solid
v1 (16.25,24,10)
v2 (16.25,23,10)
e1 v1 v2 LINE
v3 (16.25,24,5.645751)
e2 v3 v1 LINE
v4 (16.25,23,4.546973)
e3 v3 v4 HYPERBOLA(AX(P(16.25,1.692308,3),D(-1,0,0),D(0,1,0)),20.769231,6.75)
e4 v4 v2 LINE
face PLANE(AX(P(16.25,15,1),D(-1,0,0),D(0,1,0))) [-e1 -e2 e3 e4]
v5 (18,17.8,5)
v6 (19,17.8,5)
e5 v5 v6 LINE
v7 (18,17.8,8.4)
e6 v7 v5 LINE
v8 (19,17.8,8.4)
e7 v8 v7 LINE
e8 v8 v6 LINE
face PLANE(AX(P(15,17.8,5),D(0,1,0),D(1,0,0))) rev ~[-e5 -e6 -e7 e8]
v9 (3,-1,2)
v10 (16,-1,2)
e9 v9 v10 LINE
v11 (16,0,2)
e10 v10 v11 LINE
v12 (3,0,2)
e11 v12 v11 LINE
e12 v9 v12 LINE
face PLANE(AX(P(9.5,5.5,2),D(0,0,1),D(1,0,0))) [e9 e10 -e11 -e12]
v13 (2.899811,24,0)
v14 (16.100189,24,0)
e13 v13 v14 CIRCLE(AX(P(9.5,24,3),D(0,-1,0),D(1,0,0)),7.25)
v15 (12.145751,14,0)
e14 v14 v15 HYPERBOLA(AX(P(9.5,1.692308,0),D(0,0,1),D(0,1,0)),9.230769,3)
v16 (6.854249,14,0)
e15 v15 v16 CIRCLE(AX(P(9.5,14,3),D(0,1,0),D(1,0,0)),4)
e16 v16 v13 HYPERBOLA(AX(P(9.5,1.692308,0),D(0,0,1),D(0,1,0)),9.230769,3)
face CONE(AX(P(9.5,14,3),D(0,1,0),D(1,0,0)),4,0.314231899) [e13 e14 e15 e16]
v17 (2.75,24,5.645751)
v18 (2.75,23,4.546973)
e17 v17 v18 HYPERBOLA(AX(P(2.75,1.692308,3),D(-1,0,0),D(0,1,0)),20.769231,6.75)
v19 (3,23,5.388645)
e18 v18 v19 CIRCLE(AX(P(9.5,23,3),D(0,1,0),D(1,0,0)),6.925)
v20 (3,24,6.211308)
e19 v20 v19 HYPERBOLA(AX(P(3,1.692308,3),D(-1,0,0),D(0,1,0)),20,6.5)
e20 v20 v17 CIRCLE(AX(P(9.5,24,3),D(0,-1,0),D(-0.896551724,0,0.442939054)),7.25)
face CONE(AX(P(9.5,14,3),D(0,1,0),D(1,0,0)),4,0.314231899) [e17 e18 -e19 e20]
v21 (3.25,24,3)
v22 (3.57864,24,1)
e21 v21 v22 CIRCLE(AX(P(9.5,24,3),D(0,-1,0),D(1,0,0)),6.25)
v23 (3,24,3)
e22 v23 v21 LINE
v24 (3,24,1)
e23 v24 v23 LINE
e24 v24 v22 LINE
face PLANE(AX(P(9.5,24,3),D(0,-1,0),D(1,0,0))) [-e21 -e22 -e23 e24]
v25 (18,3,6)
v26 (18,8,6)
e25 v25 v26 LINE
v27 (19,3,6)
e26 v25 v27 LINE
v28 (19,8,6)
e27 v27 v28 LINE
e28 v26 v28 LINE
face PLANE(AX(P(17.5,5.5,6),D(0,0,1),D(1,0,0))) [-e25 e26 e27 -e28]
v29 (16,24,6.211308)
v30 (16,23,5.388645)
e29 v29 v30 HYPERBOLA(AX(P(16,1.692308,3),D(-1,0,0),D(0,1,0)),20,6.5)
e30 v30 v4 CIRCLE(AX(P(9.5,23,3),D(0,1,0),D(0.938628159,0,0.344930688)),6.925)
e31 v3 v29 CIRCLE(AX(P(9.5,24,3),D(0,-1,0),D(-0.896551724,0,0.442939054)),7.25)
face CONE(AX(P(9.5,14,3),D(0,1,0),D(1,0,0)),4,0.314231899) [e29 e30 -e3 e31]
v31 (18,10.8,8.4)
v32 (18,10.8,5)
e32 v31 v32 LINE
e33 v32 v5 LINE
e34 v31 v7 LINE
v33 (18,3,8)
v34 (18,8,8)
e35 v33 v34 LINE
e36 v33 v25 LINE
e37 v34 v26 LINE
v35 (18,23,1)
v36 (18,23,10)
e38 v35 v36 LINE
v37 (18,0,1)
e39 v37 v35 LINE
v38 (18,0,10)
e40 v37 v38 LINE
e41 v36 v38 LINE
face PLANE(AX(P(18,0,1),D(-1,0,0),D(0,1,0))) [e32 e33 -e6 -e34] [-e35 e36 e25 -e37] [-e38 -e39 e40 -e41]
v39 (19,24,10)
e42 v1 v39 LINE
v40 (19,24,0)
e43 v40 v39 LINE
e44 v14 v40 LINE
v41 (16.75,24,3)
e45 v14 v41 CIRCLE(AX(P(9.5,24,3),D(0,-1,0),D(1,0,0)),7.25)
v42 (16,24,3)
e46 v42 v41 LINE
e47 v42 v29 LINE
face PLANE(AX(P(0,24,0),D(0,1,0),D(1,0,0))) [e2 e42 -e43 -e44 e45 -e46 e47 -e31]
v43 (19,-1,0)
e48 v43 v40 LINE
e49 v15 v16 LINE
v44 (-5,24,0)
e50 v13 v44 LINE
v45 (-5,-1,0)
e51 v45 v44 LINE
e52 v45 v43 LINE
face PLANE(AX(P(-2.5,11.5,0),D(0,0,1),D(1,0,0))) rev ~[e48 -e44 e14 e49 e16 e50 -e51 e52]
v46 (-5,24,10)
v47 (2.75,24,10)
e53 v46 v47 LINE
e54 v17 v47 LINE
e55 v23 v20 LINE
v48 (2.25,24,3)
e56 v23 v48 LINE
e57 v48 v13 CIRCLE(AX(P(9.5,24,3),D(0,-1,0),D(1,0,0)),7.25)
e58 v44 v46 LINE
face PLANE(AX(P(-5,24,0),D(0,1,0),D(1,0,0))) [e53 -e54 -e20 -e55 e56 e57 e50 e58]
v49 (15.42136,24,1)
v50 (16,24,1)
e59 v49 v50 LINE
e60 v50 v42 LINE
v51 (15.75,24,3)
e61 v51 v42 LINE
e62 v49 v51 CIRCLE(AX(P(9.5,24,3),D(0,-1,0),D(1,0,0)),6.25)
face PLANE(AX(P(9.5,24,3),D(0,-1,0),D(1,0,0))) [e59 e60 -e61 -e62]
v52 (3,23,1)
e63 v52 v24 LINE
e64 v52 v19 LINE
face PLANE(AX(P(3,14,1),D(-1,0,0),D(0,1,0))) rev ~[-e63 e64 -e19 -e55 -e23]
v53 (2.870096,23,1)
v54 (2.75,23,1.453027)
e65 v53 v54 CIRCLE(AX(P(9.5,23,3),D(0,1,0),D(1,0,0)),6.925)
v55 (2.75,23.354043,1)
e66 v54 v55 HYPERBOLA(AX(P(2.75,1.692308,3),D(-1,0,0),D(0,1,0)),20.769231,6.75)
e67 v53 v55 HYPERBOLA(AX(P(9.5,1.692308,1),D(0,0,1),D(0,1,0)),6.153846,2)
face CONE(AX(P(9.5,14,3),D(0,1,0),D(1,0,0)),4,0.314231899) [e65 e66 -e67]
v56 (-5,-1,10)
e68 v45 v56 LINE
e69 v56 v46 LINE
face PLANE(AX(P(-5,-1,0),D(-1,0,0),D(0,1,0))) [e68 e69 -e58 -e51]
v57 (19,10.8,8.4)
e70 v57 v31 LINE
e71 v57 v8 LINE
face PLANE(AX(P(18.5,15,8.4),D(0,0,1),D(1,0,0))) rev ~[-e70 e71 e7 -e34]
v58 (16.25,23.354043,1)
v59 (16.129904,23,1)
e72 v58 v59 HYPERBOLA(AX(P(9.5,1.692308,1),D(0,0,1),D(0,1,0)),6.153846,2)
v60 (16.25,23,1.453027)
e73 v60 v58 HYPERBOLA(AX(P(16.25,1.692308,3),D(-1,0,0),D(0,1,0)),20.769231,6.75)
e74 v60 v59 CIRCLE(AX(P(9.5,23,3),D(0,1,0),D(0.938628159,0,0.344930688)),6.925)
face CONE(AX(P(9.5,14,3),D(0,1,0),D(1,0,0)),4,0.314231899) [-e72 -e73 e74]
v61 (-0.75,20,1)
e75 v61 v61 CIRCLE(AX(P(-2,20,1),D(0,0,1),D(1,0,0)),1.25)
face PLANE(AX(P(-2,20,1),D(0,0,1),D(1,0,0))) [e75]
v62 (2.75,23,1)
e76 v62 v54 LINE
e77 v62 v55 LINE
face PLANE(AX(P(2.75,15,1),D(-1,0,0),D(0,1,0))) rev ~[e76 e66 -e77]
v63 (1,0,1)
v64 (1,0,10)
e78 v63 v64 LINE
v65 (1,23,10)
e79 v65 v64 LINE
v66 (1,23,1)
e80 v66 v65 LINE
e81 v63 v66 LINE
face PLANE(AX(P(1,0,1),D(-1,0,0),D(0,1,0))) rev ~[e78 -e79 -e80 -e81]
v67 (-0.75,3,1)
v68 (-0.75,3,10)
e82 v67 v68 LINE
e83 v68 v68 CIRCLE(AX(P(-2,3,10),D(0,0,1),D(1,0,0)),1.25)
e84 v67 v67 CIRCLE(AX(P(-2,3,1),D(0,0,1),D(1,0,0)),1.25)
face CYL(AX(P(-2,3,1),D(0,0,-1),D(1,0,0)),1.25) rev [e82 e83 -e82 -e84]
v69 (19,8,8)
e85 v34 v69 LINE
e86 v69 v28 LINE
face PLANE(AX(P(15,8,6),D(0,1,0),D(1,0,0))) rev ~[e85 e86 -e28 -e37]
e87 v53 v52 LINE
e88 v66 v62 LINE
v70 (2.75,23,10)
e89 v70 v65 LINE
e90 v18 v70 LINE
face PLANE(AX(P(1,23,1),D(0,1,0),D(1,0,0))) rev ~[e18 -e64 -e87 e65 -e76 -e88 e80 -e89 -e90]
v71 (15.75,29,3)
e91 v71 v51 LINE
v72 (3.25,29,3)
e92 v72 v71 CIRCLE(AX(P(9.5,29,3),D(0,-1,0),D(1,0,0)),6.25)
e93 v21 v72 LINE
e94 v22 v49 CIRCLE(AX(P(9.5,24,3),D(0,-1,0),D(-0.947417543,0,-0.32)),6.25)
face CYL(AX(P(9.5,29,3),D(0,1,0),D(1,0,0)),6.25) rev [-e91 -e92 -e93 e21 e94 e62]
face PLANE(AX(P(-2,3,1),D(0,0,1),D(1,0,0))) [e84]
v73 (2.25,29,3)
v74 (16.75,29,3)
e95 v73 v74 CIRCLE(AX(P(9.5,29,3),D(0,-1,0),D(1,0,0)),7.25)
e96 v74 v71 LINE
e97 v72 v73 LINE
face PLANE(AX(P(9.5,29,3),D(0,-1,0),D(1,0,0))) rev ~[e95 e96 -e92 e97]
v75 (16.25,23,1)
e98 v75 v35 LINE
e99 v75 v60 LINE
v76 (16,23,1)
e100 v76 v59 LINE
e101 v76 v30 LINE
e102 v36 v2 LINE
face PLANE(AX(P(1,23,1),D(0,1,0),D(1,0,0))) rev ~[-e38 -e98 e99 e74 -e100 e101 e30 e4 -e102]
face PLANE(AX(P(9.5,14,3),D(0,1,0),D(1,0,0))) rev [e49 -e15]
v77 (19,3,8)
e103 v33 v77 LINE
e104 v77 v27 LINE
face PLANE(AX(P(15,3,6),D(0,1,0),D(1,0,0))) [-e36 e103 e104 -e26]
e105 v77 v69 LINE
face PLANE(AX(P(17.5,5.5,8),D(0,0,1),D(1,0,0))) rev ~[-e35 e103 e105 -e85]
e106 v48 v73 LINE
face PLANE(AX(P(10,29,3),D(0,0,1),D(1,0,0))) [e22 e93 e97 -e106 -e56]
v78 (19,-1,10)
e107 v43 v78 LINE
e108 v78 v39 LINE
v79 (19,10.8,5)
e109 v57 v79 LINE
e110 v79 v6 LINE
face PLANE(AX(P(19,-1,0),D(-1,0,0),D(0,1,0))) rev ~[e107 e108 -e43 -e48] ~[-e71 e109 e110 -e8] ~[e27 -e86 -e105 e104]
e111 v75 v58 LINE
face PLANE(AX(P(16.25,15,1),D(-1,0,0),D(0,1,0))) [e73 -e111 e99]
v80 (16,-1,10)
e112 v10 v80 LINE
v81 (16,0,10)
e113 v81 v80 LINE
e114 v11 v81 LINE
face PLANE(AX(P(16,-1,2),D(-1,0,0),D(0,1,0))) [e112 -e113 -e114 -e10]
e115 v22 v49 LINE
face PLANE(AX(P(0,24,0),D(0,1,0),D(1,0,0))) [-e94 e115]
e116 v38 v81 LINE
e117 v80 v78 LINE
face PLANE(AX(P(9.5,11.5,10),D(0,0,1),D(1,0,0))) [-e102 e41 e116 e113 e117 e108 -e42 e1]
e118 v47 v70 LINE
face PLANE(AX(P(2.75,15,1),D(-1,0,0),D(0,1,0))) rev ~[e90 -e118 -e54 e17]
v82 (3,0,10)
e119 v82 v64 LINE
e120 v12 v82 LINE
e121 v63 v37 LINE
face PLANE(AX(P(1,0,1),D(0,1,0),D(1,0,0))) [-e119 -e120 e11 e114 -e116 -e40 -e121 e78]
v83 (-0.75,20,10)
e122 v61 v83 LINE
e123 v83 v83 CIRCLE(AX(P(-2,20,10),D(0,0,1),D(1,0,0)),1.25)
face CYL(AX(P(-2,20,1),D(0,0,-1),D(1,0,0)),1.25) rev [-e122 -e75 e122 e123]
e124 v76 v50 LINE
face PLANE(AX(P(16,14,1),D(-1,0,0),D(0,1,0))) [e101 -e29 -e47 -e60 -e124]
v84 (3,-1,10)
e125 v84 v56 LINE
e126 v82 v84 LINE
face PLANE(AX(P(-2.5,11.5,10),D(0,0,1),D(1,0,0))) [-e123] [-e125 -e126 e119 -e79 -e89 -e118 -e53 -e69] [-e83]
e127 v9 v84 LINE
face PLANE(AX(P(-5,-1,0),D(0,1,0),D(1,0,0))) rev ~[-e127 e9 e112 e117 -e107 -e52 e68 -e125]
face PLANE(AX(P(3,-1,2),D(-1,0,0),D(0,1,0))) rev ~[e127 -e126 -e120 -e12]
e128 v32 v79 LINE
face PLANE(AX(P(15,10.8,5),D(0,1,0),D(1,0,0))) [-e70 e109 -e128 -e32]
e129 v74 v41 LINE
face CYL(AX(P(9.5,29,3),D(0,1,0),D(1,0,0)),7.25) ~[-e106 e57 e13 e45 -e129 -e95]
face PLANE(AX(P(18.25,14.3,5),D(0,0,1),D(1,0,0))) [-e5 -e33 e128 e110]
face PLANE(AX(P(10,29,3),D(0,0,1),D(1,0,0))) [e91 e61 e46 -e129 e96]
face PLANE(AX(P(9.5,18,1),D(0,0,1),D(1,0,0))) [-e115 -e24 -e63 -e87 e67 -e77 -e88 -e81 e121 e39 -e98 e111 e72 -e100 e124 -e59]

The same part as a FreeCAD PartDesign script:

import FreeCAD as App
import Part
import Sketcher

V = App.Vector
Q = App.Units.Quantity

doc = App.newDocument("Part")
body = doc.addObject("PartDesign::Body", "Body")

# Sketch on XY plane
sketch1 = body.newObject("Sketcher::SketchObject", "Sketch")
sketch1.AttachmentSupport = (doc.getObject("XY_Plane"), [""])
sketch1.MapMode = "FlatFace"
sketch1.AttachmentOffset = App.Placement(V(0, 0, 1), App.Rotation())
sketch1.addGeometry(Part.Circle(V(-2, 20, 0), V(0, 0, 1), 1.2), False)
sketch1.addConstraint(Sketcher.Constraint("Diameter", 0, Q("2.5 mm")))
sketch1.addConstraint(Sketcher.Constraint("DistanceX", 0, 3, -1, 1, Q("2 mm")))
sketch1.addConstraint(Sketcher.Constraint("DistanceY", -1, 1, 0, 3, Q("20 mm")))
pad1 = body.newObject("PartDesign::Pad", "Pad")
pad1.Profile = sketch1
pad1.Length = 9
body2 = doc.addObject("PartDesign::Body", "Body001")

# Sketch on XY plane
sketch2 = body2.newObject("Sketcher::SketchObject", "Sketch001")
sketch2.AttachmentSupport = (doc.getObject("XY_Plane001"), [""])
sketch2.MapMode = "FlatFace"
sketch2.AttachmentOffset = App.Placement(V(0, 0, 1), App.Rotation())
sketch2.addGeometry(Part.Circle(V(-2, 3, 0), V(0, 0, 1), 1.2), False)
sketch2.addConstraint(Sketcher.Constraint("Diameter", 0, Q("2.5 mm")))
sketch2.addConstraint(Sketcher.Constraint("DistanceX", 0, 3, -1, 1, Q("2 mm")))
sketch2.addConstraint(Sketcher.Constraint("DistanceY", -1, 1, 0, 3, Q("3 mm")))
pad2 = body2.newObject("PartDesign::Pad", "Pad001")
pad2.Profile = sketch2
pad2.Length = 9
body3 = doc.addObject("PartDesign::Body", "Body002")

# Sketch on XY plane
sketch3 = body3.newObject("Sketcher::SketchObject", "Sketch002")
sketch3.AttachmentSupport = (doc.getObject("XY_Plane002"), [""])
sketch3.MapMode = "FlatFace"
sketch3.addGeometry(Part.LineSegment(V(-5, 24, 0), V(-5, -1, 0)), False)
sketch3.addGeometry(Part.LineSegment(V(-5, -1, 0), V(0, -1, 0)), False)
sketch3.addGeometry(Part.LineSegment(V(0, -1, 0), V(0, 24, 0)), False)
sketch3.addGeometry(Part.LineSegment(V(0, 24, 0), V(-5, 24, 0)), False)
sketch3.addConstraint(Sketcher.Constraint("Coincident", 0, 2, 1, 1))
sketch3.addConstraint(Sketcher.Constraint("Coincident", 1, 2, 2, 1))
sketch3.addConstraint(Sketcher.Constraint("Coincident", 2, 2, 3, 1))
sketch3.addConstraint(Sketcher.Constraint("Coincident", 3, 2, 0, 1))
sketch3.addConstraint(Sketcher.Constraint("Vertical", 0))
sketch3.addConstraint(Sketcher.Constraint("Horizontal", 1))
sketch3.addConstraint(Sketcher.Constraint("Vertical", 2))
sketch3.addConstraint(Sketcher.Constraint("Horizontal", 3))
sketch3.addConstraint(Sketcher.Constraint("PointOnObject", 1, 2, -2))
sketch3.addConstraint(Sketcher.Constraint("DistanceX", 1, 1, 1, 2, Q("5 mm")))
sketch3.addConstraint(Sketcher.Constraint("DistanceY", 0, 2, 0, 1, Q("25 mm")))
sketch3.addConstraint(Sketcher.Constraint("DistanceY", 0, 2, -1, 1, Q("1 mm")))
pad3 = body3.newObject("PartDesign::Pad", "Pad002")
pad3.Profile = sketch3
pad3.Length = 10
body4 = doc.addObject("PartDesign::Body", "Body003")

# Sketch on XY plane
sketch4 = body4.newObject("Sketcher::SketchObject", "Sketch003")
sketch4.AttachmentSupport = (doc.getObject("XY_Plane003"), [""])
sketch4.MapMode = "FlatFace"
sketch4.AttachmentOffset = App.Placement(V(0, 0, 6), App.Rotation())
sketch4.addGeometry(Part.LineSegment(V(15, 8, 0), V(15, 3, 0)), False)
sketch4.addGeometry(Part.LineSegment(V(15, 3, 0), V(20, 3, 0)), False)
sketch4.addGeometry(Part.LineSegment(V(20, 3, 0), V(20, 8, 0)), False)
sketch4.addGeometry(Part.LineSegment(V(20, 8, 0), V(15, 8, 0)), False)
sketch4.addConstraint(Sketcher.Constraint("Coincident", 0, 2, 1, 1))
sketch4.addConstraint(Sketcher.Constraint("Coincident", 1, 2, 2, 1))
sketch4.addConstraint(Sketcher.Constraint("Coincident", 2, 2, 3, 1))
sketch4.addConstraint(Sketcher.Constraint("Coincident", 3, 2, 0, 1))
sketch4.addConstraint(Sketcher.Constraint("Vertical", 0))
sketch4.addConstraint(Sketcher.Constraint("Horizontal", 1))
sketch4.addConstraint(Sketcher.Constraint("Vertical", 2))
sketch4.addConstraint(Sketcher.Constraint("Horizontal", 3))
sketch4.addConstraint(Sketcher.Constraint("Equal", 3, 0))
sketch4.addConstraint(Sketcher.Constraint("DistanceX", 1, 1, 1, 2, Q("5 mm")))
sketch4.addConstraint(Sketcher.Constraint("DistanceX", -1, 1, 0, 2, Q("15 mm")))
sketch4.addConstraint(Sketcher.Constraint("DistanceY", -1, 1, 0, 2, Q("3 mm")))
pad4 = body4.newObject("PartDesign::Pad", "Pad003")
pad4.Profile = sketch4
pad4.Length = 2
body5 = doc.addObject("PartDesign::Body", "Body004")

# Sketch on XY plane
sketch5 = body5.newObject("Sketcher::SketchObject", "Sketch004")
sketch5.AttachmentSupport = (doc.getObject("XY_Plane004"), [""])
sketch5.MapMode = "FlatFace"
sketch5.AttachmentOffset = App.Placement(V(0, 0, 3), App.Rotation())
sketch5.addGeometry(Part.LineSegment(V(0, 34, 0), V(0, 24, 0)), False)
sketch5.addGeometry(Part.LineSegment(V(0, 24, 0), V(20, 24, 0)), False)
sketch5.addGeometry(Part.LineSegment(V(20, 24, 0), V(20, 34, 0)), False)
sketch5.addGeometry(Part.LineSegment(V(20, 34, 0), V(0, 34, 0)), False)
sketch5.addConstraint(Sketcher.Constraint("Coincident", 0, 2, 1, 1))
sketch5.addConstraint(Sketcher.Constraint("Coincident", 1, 2, 2, 1))
sketch5.addConstraint(Sketcher.Constraint("Coincident", 2, 2, 3, 1))
sketch5.addConstraint(Sketcher.Constraint("Coincident", 3, 2, 0, 1))
sketch5.addConstraint(Sketcher.Constraint("Vertical", 0))
sketch5.addConstraint(Sketcher.Constraint("Horizontal", 1))
sketch5.addConstraint(Sketcher.Constraint("Vertical", 2))
sketch5.addConstraint(Sketcher.Constraint("Horizontal", 3))
sketch5.addConstraint(Sketcher.Constraint("PointOnObject", 0, 2, -2))
sketch5.addConstraint(Sketcher.Constraint("DistanceX", 1, 1, 1, 2, Q("20 mm")))
sketch5.addConstraint(Sketcher.Constraint("DistanceY", 0, 2, 0, 1, Q("10 mm")))
sketch5.addConstraint(Sketcher.Constraint("DistanceY", -1, 1, 0, 2, Q("24 mm")))
pad5 = body5.newObject("PartDesign::Pad", "Pad004")
pad5.Profile = sketch5
pad5.Length = 10
body6 = doc.addObject("PartDesign::Body", "Body005")

# Sketch on XZ plane
sketch6 = body6.newObject("Sketcher::SketchObject", "Sketch005")
sketch6.AttachmentSupport = (doc.getObject("XZ_Plane005"), [""])
sketch6.MapMode = "FlatFace"
sketch6.AttachmentOffset = App.Placement(V(0, 0, -29), App.Rotation())
sketch6.addGeometry(Part.Circle(V(10, 3, 0), V(0, 0, 1), 6), False)
sketch6.addConstraint(Sketcher.Constraint("Diameter", 0, Q("12.5 mm")))
sketch6.addConstraint(Sketcher.Constraint("DistanceY", -1, 1, 0, 3, Q("3 mm")))
sketch6.addConstraint(Sketcher.Constraint("DistanceX", -1, 1, 0, 3, Q("9.5 mm")))
pad6 = body6.newObject("PartDesign::Pad", "Pad005")
pad6.Profile = sketch6
pad6.Length = 5
body7 = doc.addObject("PartDesign::Body", "Body006")

# Sketch on XZ plane
sketch7 = body7.newObject("Sketcher::SketchObject", "Sketch006")
sketch7.AttachmentSupport = (doc.getObject("XZ_Plane006"), [""])
sketch7.MapMode = "FlatFace"
sketch7.AttachmentOffset = App.Placement(V(0, 0, -29), App.Rotation())
sketch7.addGeometry(Part.Circle(V(10, 3, 0), V(0, 0, 1), 7), False)
sketch7.addConstraint(Sketcher.Constraint("Diameter", 0, Q("14.5 mm")))
sketch7.addConstraint(Sketcher.Constraint("DistanceY", -1, 1, 0, 3, Q("3 mm")))
sketch7.addConstraint(Sketcher.Constraint("DistanceX", -1, 1, 0, 3, Q("9.5 mm")))
pad7 = body7.newObject("PartDesign::Pad", "Pad006")
pad7.Profile = sketch7
pad7.Length = 5
doc.recompute()

boolean = body7.newObject("PartDesign::Boolean", "Boolean")
boolean.Type = "Cut"
boolean.addObjects([body6])
doc.recompute()

boolean2 = body7.newObject("PartDesign::Boolean", "Boolean001")
boolean2.Type = "Cut"
boolean2.addObjects([body5])
body8 = doc.addObject("PartDesign::Body", "Body007")

# Sketch on XY plane
sketch8 = body8.newObject("Sketcher::SketchObject", "Sketch007")
sketch8.AttachmentSupport = (doc.getObject("XY_Plane007"), [""])
sketch8.MapMode = "FlatFace"
sketch8.AttachmentOffset = App.Placement(V(0, 0, 5), App.Rotation())
sketch8.addGeometry(Part.LineSegment(V(15, 18, 0), V(15, 11, 0)), False)
sketch8.addGeometry(Part.LineSegment(V(15, 11, 0), V(22, 11, 0)), False)
sketch8.addGeometry(Part.LineSegment(V(22, 11, 0), V(22, 18, 0)), False)
sketch8.addGeometry(Part.LineSegment(V(22, 18, 0), V(15, 18, 0)), False)
sketch8.addConstraint(Sketcher.Constraint("Coincident", 0, 2, 1, 1))
sketch8.addConstraint(Sketcher.Constraint("Coincident", 1, 2, 2, 1))
sketch8.addConstraint(Sketcher.Constraint("Coincident", 2, 2, 3, 1))
sketch8.addConstraint(Sketcher.Constraint("Coincident", 3, 2, 0, 1))
sketch8.addConstraint(Sketcher.Constraint("Vertical", 0))
sketch8.addConstraint(Sketcher.Constraint("Horizontal", 1))
sketch8.addConstraint(Sketcher.Constraint("Vertical", 2))
sketch8.addConstraint(Sketcher.Constraint("Horizontal", 3))
sketch8.addConstraint(Sketcher.Constraint("DistanceY", 0, 2, 0, 1, Q("7 mm")))
sketch8.addConstraint(Sketcher.Constraint("DistanceX", 1, 1, 1, 2, Q("6.5 mm")))
sketch8.addConstraint(Sketcher.Constraint("DistanceX", -1, 1, 0, 2, Q("15 mm")))
sketch8.addConstraint(Sketcher.Constraint("DistanceY", -1, 1, 0, 2, Q("10.8 mm")))
pad8 = body8.newObject("PartDesign::Pad", "Pad007")
pad8.Profile = sketch8
pad8.Length = 10
body9 = doc.addObject("PartDesign::Body", "Body008")

# Sketch on XY plane
sketch9 = body9.newObject("Sketcher::SketchObject", "Sketch008")
sketch9.AttachmentSupport = (doc.getObject("XY_Plane008"), [""])
sketch9.MapMode = "FlatFace"
sketch9.AttachmentOffset = App.Placement(V(0, 0, 1), App.Rotation())
sketch9.addGeometry(Part.LineSegment(V(3, 25, 0), V(3, 15, 0)), False)
sketch9.addGeometry(Part.LineSegment(V(3, 15, 0), V(16, 15, 0)), False)
sketch9.addGeometry(Part.LineSegment(V(16, 15, 0), V(16, 25, 0)), False)
sketch9.addGeometry(Part.LineSegment(V(16, 25, 0), V(3, 25, 0)), False)
sketch9.addConstraint(Sketcher.Constraint("Coincident", 0, 2, 1, 1))
sketch9.addConstraint(Sketcher.Constraint("Coincident", 1, 2, 2, 1))
sketch9.addConstraint(Sketcher.Constraint("Coincident", 2, 2, 3, 1))
sketch9.addConstraint(Sketcher.Constraint("Coincident", 3, 2, 0, 1))
sketch9.addConstraint(Sketcher.Constraint("Vertical", 0))
sketch9.addConstraint(Sketcher.Constraint("Horizontal", 1))
sketch9.addConstraint(Sketcher.Constraint("Vertical", 2))
sketch9.addConstraint(Sketcher.Constraint("Horizontal", 3))
sketch9.addConstraint(Sketcher.Constraint("DistanceY", 0, 2, 0, 1, Q("10 mm")))
sketch9.addConstraint(Sketcher.Constraint("DistanceX", 1, 1, 1, 2, Q("13.5 mm")))
sketch9.addConstraint(Sketcher.Constraint("DistanceY", -1, 1, 0, 2, Q("15 mm")))
sketch9.addConstraint(Sketcher.Constraint("DistanceX", -1, 1, 0, 2, Q("2.75 mm")))
pad9 = body9.newObject("PartDesign::Pad", "Pad008")
pad9.Profile = sketch9
pad9.Length = 12
body10 = doc.addObject("PartDesign::Body", "Body009")

# Sketch on XY plane
sketch10 = body10.newObject("Sketcher::SketchObject", "Sketch009")
sketch10.AttachmentSupport = (doc.getObject("XY_Plane009"), [""])
sketch10.MapMode = "FlatFace"
sketch10.AttachmentOffset = App.Placement(V(0, 0, 2), App.Rotation())
sketch10.addGeometry(Part.LineSegment(V(3, 12, 0), V(3, -1, 0)), False)
sketch10.addGeometry(Part.LineSegment(V(3, -1, 0), V(16, -1, 0)), False)
sketch10.addGeometry(Part.LineSegment(V(16, -1, 0), V(16, 12, 0)), False)
sketch10.addGeometry(Part.LineSegment(V(16, 12, 0), V(3, 12, 0)), False)
sketch10.addConstraint(Sketcher.Constraint("Coincident", 0, 2, 1, 1))
sketch10.addConstraint(Sketcher.Constraint("Coincident", 1, 2, 2, 1))
sketch10.addConstraint(Sketcher.Constraint("Coincident", 2, 2, 3, 1))
sketch10.addConstraint(Sketcher.Constraint("Coincident", 3, 2, 0, 1))
sketch10.addConstraint(Sketcher.Constraint("Vertical", 0))
sketch10.addConstraint(Sketcher.Constraint("Horizontal", 1))
sketch10.addConstraint(Sketcher.Constraint("Vertical", 2))
sketch10.addConstraint(Sketcher.Constraint("Horizontal", 3))
sketch10.addConstraint(Sketcher.Constraint("Equal", 3, 0))
sketch10.addConstraint(Sketcher.Constraint("DistanceX", 1, 1, 1, 2, Q("13 mm")))
sketch10.addConstraint(Sketcher.Constraint("DistanceX", -1, 1, 0, 2, Q("3 mm")))
sketch10.addConstraint(Sketcher.Constraint("DistanceY", 0, 2, -1, 1, Q("1 mm")))
pad10 = body10.newObject("PartDesign::Pad", "Pad009")
pad10.Profile = sketch10
pad10.Length = 12
body11 = doc.addObject("PartDesign::Body", "Body010")

# Sketch on XY plane
sketch11 = body11.newObject("Sketcher::SketchObject", "Sketch010")
sketch11.AttachmentSupport = (doc.getObject("XY_Plane010"), [""])
sketch11.MapMode = "FlatFace"
sketch11.AttachmentOffset = App.Placement(V(0, 0, 1), App.Rotation())
sketch11.addGeometry(Part.LineSegment(V(1, 23, 0), V(1, 0, 0)), False)
sketch11.addGeometry(Part.LineSegment(V(1, 0, 0), V(18, 0, 0)), False)
sketch11.addGeometry(Part.LineSegment(V(18, 0, 0), V(18, 23, 0)), False)
sketch11.addGeometry(Part.LineSegment(V(18, 23, 0), V(1, 23, 0)), False)
sketch11.addConstraint(Sketcher.Constraint("Coincident", 0, 2, 1, 1))
sketch11.addConstraint(Sketcher.Constraint("Coincident", 1, 2, 2, 1))
sketch11.addConstraint(Sketcher.Constraint("Coincident", 2, 2, 3, 1))
sketch11.addConstraint(Sketcher.Constraint("Coincident", 3, 2, 0, 1))
sketch11.addConstraint(Sketcher.Constraint("Vertical", 0))
sketch11.addConstraint(Sketcher.Constraint("Horizontal", 1))
sketch11.addConstraint(Sketcher.Constraint("Vertical", 2))
sketch11.addConstraint(Sketcher.Constraint("Horizontal", 3))
sketch11.addConstraint(Sketcher.Constraint("PointOnObject", 0, 2, -1))
sketch11.addConstraint(Sketcher.Constraint("DistanceX", 1, 1, 1, 2, Q("17 mm")))
sketch11.addConstraint(Sketcher.Constraint("DistanceY", 0, 2, 0, 1, Q("23 mm")))
sketch11.addConstraint(Sketcher.Constraint("DistanceX", -1, 1, 0, 2, Q("1 mm")))
pad11 = body11.newObject("PartDesign::Pad", "Pad010")
pad11.Profile = sketch11
pad11.Length = 12
body12 = doc.addObject("PartDesign::Body", "Body011")

# Sketch on XY plane
sketch12 = body12.newObject("Sketcher::SketchObject", "Sketch011")
sketch12.AttachmentSupport = (doc.getObject("XY_Plane011"), [""])
sketch12.MapMode = "FlatFace"
sketch12.addGeometry(Part.LineSegment(V(0, 24, 0), V(0, -1, 0)), False)
sketch12.addGeometry(Part.LineSegment(V(0, -1, 0), V(19, -1, 0)), False)
sketch12.addGeometry(Part.LineSegment(V(19, -1, 0), V(19, 24, 0)), False)
sketch12.addGeometry(Part.LineSegment(V(19, 24, 0), V(0, 24, 0)), False)
sketch12.addConstraint(Sketcher.Constraint("Coincident", 0, 2, 1, 1))
sketch12.addConstraint(Sketcher.Constraint("Coincident", 1, 2, 2, 1))
sketch12.addConstraint(Sketcher.Constraint("Coincident", 2, 2, 3, 1))
sketch12.addConstraint(Sketcher.Constraint("Coincident", 3, 2, 0, 1))
sketch12.addConstraint(Sketcher.Constraint("Vertical", 0))
sketch12.addConstraint(Sketcher.Constraint("Horizontal", 1))
sketch12.addConstraint(Sketcher.Constraint("Vertical", 2))
sketch12.addConstraint(Sketcher.Constraint("Horizontal", 3))
sketch12.addConstraint(Sketcher.Constraint("PointOnObject", 0, 2, -2))
sketch12.addConstraint(Sketcher.Constraint("DistanceX", 1, 1, 1, 2, Q("19 mm")))
sketch12.addConstraint(Sketcher.Constraint("DistanceY", 0, 2, 0, 1, Q("25 mm")))
sketch12.addConstraint(Sketcher.Constraint("DistanceY", 0, 2, -1, 1, Q("1 mm")))
pad12 = body12.newObject("PartDesign::Pad", "Pad011")
pad12.Profile = sketch12
pad12.Length = 10
doc.recompute()

boolean3 = body12.newObject("PartDesign::Boolean", "Boolean002")
boolean3.Type = "Cut"
boolean3.addObjects([body11])
doc.recompute()

boolean4 = body12.newObject("PartDesign::Boolean", "Boolean003")
boolean4.Type = "Cut"
boolean4.addObjects([body10])
doc.recompute()

boolean5 = body12.newObject("PartDesign::Boolean", "Boolean004")
boolean5.Type = "Cut"
boolean5.addObjects([body9])
doc.recompute()

boolean6 = body12.newObject("PartDesign::Boolean", "Boolean005")
boolean6.Type = "Cut"
boolean6.addObjects([body8])
doc.recompute()

boolean7 = body12.newObject("PartDesign::Boolean", "Boolean006")
boolean7.Type = "Fuse"
boolean7.addObjects([body7])
body13 = doc.addObject("PartDesign::Body", "Body012")

# Sketch on XY plane
sketch13 = body13.newObject("Sketcher::SketchObject", "Sketch012")
sketch13.AttachmentSupport = (doc.getObject("XY_Plane012"), [""])
sketch13.MapMode = "FlatFace"
sketch13.AttachmentOffset = App.Placement(V(0, 0, 1), App.Rotation())
sketch13.addGeometry(Part.LineSegment(V(3, 24, 0), V(3, 14, 0)), False)
sketch13.addGeometry(Part.LineSegment(V(3, 14, 0), V(16, 14, 0)), False)
sketch13.addGeometry(Part.LineSegment(V(16, 14, 0), V(16, 24, 0)), False)
sketch13.addGeometry(Part.LineSegment(V(16, 24, 0), V(3, 24, 0)), False)
sketch13.addConstraint(Sketcher.Constraint("Coincident", 0, 2, 1, 1))
sketch13.addConstraint(Sketcher.Constraint("Coincident", 1, 2, 2, 1))
sketch13.addConstraint(Sketcher.Constraint("Coincident", 2, 2, 3, 1))
sketch13.addConstraint(Sketcher.Constraint("Coincident", 3, 2, 0, 1))
sketch13.addConstraint(Sketcher.Constraint("Vertical", 0))
sketch13.addConstraint(Sketcher.Constraint("Horizontal", 1))
sketch13.addConstraint(Sketcher.Constraint("Vertical", 2))
sketch13.addConstraint(Sketcher.Constraint("Horizontal", 3))
sketch13.addConstraint(Sketcher.Constraint("DistanceX", 1, 1, 1, 2, Q("13 mm")))
sketch13.addConstraint(Sketcher.Constraint("DistanceY", 0, 2, 0, 1, Q("10 mm")))
sketch13.addConstraint(Sketcher.Constraint("DistanceX", -1, 1, 0, 2, Q("3 mm")))
sketch13.addConstraint(Sketcher.Constraint("DistanceY", -1, 1, 0, 2, Q("14 mm")))
pad13 = body13.newObject("PartDesign::Pad", "Pad012")
pad13.Profile = sketch13
pad13.Length = 10
body14 = doc.addObject("PartDesign::Body", "Body013")

# Sketch on XY plane
sketch14 = body14.newObject("Sketcher::SketchObject", "Sketch013")
sketch14.AttachmentSupport = (doc.getObject("XY_Plane013"), [""])
sketch14.MapMode = "FlatFace"
sketch14.AttachmentOffset = App.Placement(V(0, 0, 1), App.Rotation())
sketch14.addGeometry(Part.LineSegment(V(2, 23, 0), V(2, 13, 0)), False)
sketch14.addGeometry(Part.LineSegment(V(2, 13, 0), V(17, 13, 0)), False)
sketch14.addGeometry(Part.LineSegment(V(17, 13, 0), V(17, 23, 0)), False)
sketch14.addGeometry(Part.LineSegment(V(17, 23, 0), V(2, 23, 0)), False)
sketch14.addConstraint(Sketcher.Constraint("Coincident", 0, 2, 1, 1))
sketch14.addConstraint(Sketcher.Constraint("Coincident", 1, 2, 2, 1))
sketch14.addConstraint(Sketcher.Constraint("Coincident", 2, 2, 3, 1))
sketch14.addConstraint(Sketcher.Constraint("Coincident", 3, 2, 0, 1))
sketch14.addConstraint(Sketcher.Constraint("Vertical", 0))
sketch14.addConstraint(Sketcher.Constraint("Horizontal", 1))
sketch14.addConstraint(Sketcher.Constraint("Vertical", 2))
sketch14.addConstraint(Sketcher.Constraint("Horizontal", 3))
sketch14.addConstraint(Sketcher.Constraint("DistanceX", 1, 1, 1, 2, Q("15 mm")))
sketch14.addConstraint(Sketcher.Constraint("DistanceY", 0, 2, 0, 1, Q("10 mm")))
sketch14.addConstraint(Sketcher.Constraint("DistanceX", -1, 1, 0, 2, Q("2 mm")))
sketch14.addConstraint(Sketcher.Constraint("DistanceY", -1, 1, 0, 2, Q("13 mm")))
pad14 = body14.newObject("PartDesign::Pad", "Pad013")
pad14.Profile = sketch14
pad14.Length = 10
body15 = doc.addObject("PartDesign::Body", "Body014")

# Sketch on XY plane
sketch15 = body15.newObject("Sketcher::SketchObject", "Sketch014")
sketch15.AttachmentSupport = (doc.getObject("XY_Plane014"), [""])
sketch15.MapMode = "FlatFace"
sketch15.AttachmentOffset = App.Placement(V(0, 0, 3), App.Rotation())
sketch15.addGeometry(Part.LineSegment(V(9.5, 14, 0), V(13.5, 14, 0)), False)
sketch15.addGeometry(Part.LineSegment(V(13.5, 14, 0), V(16.8, 24, 0)), False)
sketch15.addGeometry(Part.LineSegment(V(16.8, 24, 0), V(9.5, 24, 0)), False)
sketch15.addGeometry(Part.LineSegment(V(9.5, 24, 0), V(9.5, 14, 0)), False)
sketch15.addGeometry(Part.LineSegment(V(9.5, 14, 0), V(9.5, 24, 0)), True)  # axis
sketch15.addConstraint(Sketcher.Constraint("Coincident", 0, 2, 1, 1))
sketch15.addConstraint(Sketcher.Constraint("Coincident", 1, 2, 2, 1))
sketch15.addConstraint(Sketcher.Constraint("Coincident", 2, 2, 3, 1))
sketch15.addConstraint(Sketcher.Constraint("Coincident", 3, 2, 0, 1))
sketch15.addConstraint(Sketcher.Constraint("Horizontal", 0))
sketch15.addConstraint(Sketcher.Constraint("Horizontal", 2))
sketch15.addConstraint(Sketcher.Constraint("Vertical", 3))
sketch15.addConstraint(Sketcher.Constraint("Vertical", 4))
sketch15.addConstraint(Sketcher.Constraint("Coincident", 4, 1, 3, 2))
sketch15.addConstraint(Sketcher.Constraint("Horizontal", 1, 2, 4, 2))
sketch15.addConstraint(Sketcher.Constraint("DistanceX", 0, 1, 0, 2, Q("4 mm")))
sketch15.addConstraint(Sketcher.Constraint("DistanceY", 3, 2, 3, 1, Q("10 mm")))
sketch15.addConstraint(Sketcher.Constraint("DistanceY", -1, 1, 0, 2, Q("14 mm")))
sketch15.addConstraint(Sketcher.Constraint("DistanceX", 2, 2, 2, 1, Q("7.25 mm")))
sketch15.addConstraint(Sketcher.Constraint("DistanceX", -1, 1, 0, 2, Q("13.5 mm")))
revolution = body15.newObject("PartDesign::Revolution", "Revolution")
revolution.Profile = sketch15
revolution.ReferenceAxis = (sketch15, ["Axis0"])
revolution.Angle = 360
doc.recompute()

boolean8 = body15.newObject("PartDesign::Boolean", "Boolean007")
boolean8.Type = "Cut"
boolean8.addObjects([body14])
doc.recompute()

boolean9 = body15.newObject("PartDesign::Boolean", "Boolean008")
boolean9.Type = "Cut"
boolean9.addObjects([body13])
doc.recompute()

boolean10 = body15.newObject("PartDesign::Boolean", "Boolean009")
boolean10.Type = "Fuse"
boolean10.addObjects([body12])
doc.recompute()

boolean11 = body15.newObject("PartDesign::Boolean", "Boolean010")
boolean11.Type = "Cut"
boolean11.addObjects([body4])
doc.recompute()

boolean12 = body15.newObject("PartDesign::Boolean", "Boolean011")
boolean12.Type = "Fuse"
boolean12.addObjects([body3])
doc.recompute()

boolean13 = body15.newObject("PartDesign::Boolean", "Boolean012")
boolean13.Type = "Cut"
boolean13.addObjects([body2])
doc.recompute()

boolean14 = body15.newObject("PartDesign::Boolean", "Boolean013")
boolean14.Type = "Cut"
boolean14.addObjects([body])
body16 = doc.addObject("PartDesign::Body", "Body015")

# Sketch on XY plane
sketch16 = body16.newObject("Sketcher::SketchObject", "Sketch015")
sketch16.AttachmentSupport = (doc.getObject("XY_Plane015"), [""])
sketch16.MapMode = "FlatFace"
sketch16.AttachmentOffset = App.Placement(V(0, 0, 8.4), App.Rotation())
sketch16.addGeometry(Part.LineSegment(V(18, 20, 0), V(18, 10, 0)), False)
sketch16.addGeometry(Part.LineSegment(V(18, 10, 0), V(19, 10, 0)), False)
sketch16.addGeometry(Part.LineSegment(V(19, 10, 0), V(19, 20, 0)), False)
sketch16.addGeometry(Part.LineSegment(V(19, 20, 0), V(18, 20, 0)), False)
sketch16.addConstraint(Sketcher.Constraint("Coincident", 0, 2, 1, 1))
sketch16.addConstraint(Sketcher.Constraint("Coincident", 1, 2, 2, 1))
sketch16.addConstraint(Sketcher.Constraint("Coincident", 2, 2, 3, 1))
sketch16.addConstraint(Sketcher.Constraint("Coincident", 3, 2, 0, 1))
sketch16.addConstraint(Sketcher.Constraint("Vertical", 0))
sketch16.addConstraint(Sketcher.Constraint("Horizontal", 1))
sketch16.addConstraint(Sketcher.Constraint("Vertical", 2))
sketch16.addConstraint(Sketcher.Constraint("Horizontal", 3))
sketch16.addConstraint(Sketcher.Constraint("DistanceX", 1, 1, 1, 2, Q("1 mm")))
sketch16.addConstraint(Sketcher.Constraint("DistanceY", 0, 2, 0, 1, Q("10 mm")))
sketch16.addConstraint(Sketcher.Constraint("DistanceX", -1, 1, 0, 2, Q("18 mm")))
sketch16.addConstraint(Sketcher.Constraint("DistanceY", -1, 1, 0, 2, Q("10 mm")))
pad15 = body16.newObject("PartDesign::Pad", "Pad014")
pad15.Profile = sketch16
pad15.Length = 1.6
doc.recompute()

boolean15 = body16.newObject("PartDesign::Boolean", "Boolean014")
boolean15.Type = "Fuse"
boolean15.addObjects([body15])

doc.recompute()
